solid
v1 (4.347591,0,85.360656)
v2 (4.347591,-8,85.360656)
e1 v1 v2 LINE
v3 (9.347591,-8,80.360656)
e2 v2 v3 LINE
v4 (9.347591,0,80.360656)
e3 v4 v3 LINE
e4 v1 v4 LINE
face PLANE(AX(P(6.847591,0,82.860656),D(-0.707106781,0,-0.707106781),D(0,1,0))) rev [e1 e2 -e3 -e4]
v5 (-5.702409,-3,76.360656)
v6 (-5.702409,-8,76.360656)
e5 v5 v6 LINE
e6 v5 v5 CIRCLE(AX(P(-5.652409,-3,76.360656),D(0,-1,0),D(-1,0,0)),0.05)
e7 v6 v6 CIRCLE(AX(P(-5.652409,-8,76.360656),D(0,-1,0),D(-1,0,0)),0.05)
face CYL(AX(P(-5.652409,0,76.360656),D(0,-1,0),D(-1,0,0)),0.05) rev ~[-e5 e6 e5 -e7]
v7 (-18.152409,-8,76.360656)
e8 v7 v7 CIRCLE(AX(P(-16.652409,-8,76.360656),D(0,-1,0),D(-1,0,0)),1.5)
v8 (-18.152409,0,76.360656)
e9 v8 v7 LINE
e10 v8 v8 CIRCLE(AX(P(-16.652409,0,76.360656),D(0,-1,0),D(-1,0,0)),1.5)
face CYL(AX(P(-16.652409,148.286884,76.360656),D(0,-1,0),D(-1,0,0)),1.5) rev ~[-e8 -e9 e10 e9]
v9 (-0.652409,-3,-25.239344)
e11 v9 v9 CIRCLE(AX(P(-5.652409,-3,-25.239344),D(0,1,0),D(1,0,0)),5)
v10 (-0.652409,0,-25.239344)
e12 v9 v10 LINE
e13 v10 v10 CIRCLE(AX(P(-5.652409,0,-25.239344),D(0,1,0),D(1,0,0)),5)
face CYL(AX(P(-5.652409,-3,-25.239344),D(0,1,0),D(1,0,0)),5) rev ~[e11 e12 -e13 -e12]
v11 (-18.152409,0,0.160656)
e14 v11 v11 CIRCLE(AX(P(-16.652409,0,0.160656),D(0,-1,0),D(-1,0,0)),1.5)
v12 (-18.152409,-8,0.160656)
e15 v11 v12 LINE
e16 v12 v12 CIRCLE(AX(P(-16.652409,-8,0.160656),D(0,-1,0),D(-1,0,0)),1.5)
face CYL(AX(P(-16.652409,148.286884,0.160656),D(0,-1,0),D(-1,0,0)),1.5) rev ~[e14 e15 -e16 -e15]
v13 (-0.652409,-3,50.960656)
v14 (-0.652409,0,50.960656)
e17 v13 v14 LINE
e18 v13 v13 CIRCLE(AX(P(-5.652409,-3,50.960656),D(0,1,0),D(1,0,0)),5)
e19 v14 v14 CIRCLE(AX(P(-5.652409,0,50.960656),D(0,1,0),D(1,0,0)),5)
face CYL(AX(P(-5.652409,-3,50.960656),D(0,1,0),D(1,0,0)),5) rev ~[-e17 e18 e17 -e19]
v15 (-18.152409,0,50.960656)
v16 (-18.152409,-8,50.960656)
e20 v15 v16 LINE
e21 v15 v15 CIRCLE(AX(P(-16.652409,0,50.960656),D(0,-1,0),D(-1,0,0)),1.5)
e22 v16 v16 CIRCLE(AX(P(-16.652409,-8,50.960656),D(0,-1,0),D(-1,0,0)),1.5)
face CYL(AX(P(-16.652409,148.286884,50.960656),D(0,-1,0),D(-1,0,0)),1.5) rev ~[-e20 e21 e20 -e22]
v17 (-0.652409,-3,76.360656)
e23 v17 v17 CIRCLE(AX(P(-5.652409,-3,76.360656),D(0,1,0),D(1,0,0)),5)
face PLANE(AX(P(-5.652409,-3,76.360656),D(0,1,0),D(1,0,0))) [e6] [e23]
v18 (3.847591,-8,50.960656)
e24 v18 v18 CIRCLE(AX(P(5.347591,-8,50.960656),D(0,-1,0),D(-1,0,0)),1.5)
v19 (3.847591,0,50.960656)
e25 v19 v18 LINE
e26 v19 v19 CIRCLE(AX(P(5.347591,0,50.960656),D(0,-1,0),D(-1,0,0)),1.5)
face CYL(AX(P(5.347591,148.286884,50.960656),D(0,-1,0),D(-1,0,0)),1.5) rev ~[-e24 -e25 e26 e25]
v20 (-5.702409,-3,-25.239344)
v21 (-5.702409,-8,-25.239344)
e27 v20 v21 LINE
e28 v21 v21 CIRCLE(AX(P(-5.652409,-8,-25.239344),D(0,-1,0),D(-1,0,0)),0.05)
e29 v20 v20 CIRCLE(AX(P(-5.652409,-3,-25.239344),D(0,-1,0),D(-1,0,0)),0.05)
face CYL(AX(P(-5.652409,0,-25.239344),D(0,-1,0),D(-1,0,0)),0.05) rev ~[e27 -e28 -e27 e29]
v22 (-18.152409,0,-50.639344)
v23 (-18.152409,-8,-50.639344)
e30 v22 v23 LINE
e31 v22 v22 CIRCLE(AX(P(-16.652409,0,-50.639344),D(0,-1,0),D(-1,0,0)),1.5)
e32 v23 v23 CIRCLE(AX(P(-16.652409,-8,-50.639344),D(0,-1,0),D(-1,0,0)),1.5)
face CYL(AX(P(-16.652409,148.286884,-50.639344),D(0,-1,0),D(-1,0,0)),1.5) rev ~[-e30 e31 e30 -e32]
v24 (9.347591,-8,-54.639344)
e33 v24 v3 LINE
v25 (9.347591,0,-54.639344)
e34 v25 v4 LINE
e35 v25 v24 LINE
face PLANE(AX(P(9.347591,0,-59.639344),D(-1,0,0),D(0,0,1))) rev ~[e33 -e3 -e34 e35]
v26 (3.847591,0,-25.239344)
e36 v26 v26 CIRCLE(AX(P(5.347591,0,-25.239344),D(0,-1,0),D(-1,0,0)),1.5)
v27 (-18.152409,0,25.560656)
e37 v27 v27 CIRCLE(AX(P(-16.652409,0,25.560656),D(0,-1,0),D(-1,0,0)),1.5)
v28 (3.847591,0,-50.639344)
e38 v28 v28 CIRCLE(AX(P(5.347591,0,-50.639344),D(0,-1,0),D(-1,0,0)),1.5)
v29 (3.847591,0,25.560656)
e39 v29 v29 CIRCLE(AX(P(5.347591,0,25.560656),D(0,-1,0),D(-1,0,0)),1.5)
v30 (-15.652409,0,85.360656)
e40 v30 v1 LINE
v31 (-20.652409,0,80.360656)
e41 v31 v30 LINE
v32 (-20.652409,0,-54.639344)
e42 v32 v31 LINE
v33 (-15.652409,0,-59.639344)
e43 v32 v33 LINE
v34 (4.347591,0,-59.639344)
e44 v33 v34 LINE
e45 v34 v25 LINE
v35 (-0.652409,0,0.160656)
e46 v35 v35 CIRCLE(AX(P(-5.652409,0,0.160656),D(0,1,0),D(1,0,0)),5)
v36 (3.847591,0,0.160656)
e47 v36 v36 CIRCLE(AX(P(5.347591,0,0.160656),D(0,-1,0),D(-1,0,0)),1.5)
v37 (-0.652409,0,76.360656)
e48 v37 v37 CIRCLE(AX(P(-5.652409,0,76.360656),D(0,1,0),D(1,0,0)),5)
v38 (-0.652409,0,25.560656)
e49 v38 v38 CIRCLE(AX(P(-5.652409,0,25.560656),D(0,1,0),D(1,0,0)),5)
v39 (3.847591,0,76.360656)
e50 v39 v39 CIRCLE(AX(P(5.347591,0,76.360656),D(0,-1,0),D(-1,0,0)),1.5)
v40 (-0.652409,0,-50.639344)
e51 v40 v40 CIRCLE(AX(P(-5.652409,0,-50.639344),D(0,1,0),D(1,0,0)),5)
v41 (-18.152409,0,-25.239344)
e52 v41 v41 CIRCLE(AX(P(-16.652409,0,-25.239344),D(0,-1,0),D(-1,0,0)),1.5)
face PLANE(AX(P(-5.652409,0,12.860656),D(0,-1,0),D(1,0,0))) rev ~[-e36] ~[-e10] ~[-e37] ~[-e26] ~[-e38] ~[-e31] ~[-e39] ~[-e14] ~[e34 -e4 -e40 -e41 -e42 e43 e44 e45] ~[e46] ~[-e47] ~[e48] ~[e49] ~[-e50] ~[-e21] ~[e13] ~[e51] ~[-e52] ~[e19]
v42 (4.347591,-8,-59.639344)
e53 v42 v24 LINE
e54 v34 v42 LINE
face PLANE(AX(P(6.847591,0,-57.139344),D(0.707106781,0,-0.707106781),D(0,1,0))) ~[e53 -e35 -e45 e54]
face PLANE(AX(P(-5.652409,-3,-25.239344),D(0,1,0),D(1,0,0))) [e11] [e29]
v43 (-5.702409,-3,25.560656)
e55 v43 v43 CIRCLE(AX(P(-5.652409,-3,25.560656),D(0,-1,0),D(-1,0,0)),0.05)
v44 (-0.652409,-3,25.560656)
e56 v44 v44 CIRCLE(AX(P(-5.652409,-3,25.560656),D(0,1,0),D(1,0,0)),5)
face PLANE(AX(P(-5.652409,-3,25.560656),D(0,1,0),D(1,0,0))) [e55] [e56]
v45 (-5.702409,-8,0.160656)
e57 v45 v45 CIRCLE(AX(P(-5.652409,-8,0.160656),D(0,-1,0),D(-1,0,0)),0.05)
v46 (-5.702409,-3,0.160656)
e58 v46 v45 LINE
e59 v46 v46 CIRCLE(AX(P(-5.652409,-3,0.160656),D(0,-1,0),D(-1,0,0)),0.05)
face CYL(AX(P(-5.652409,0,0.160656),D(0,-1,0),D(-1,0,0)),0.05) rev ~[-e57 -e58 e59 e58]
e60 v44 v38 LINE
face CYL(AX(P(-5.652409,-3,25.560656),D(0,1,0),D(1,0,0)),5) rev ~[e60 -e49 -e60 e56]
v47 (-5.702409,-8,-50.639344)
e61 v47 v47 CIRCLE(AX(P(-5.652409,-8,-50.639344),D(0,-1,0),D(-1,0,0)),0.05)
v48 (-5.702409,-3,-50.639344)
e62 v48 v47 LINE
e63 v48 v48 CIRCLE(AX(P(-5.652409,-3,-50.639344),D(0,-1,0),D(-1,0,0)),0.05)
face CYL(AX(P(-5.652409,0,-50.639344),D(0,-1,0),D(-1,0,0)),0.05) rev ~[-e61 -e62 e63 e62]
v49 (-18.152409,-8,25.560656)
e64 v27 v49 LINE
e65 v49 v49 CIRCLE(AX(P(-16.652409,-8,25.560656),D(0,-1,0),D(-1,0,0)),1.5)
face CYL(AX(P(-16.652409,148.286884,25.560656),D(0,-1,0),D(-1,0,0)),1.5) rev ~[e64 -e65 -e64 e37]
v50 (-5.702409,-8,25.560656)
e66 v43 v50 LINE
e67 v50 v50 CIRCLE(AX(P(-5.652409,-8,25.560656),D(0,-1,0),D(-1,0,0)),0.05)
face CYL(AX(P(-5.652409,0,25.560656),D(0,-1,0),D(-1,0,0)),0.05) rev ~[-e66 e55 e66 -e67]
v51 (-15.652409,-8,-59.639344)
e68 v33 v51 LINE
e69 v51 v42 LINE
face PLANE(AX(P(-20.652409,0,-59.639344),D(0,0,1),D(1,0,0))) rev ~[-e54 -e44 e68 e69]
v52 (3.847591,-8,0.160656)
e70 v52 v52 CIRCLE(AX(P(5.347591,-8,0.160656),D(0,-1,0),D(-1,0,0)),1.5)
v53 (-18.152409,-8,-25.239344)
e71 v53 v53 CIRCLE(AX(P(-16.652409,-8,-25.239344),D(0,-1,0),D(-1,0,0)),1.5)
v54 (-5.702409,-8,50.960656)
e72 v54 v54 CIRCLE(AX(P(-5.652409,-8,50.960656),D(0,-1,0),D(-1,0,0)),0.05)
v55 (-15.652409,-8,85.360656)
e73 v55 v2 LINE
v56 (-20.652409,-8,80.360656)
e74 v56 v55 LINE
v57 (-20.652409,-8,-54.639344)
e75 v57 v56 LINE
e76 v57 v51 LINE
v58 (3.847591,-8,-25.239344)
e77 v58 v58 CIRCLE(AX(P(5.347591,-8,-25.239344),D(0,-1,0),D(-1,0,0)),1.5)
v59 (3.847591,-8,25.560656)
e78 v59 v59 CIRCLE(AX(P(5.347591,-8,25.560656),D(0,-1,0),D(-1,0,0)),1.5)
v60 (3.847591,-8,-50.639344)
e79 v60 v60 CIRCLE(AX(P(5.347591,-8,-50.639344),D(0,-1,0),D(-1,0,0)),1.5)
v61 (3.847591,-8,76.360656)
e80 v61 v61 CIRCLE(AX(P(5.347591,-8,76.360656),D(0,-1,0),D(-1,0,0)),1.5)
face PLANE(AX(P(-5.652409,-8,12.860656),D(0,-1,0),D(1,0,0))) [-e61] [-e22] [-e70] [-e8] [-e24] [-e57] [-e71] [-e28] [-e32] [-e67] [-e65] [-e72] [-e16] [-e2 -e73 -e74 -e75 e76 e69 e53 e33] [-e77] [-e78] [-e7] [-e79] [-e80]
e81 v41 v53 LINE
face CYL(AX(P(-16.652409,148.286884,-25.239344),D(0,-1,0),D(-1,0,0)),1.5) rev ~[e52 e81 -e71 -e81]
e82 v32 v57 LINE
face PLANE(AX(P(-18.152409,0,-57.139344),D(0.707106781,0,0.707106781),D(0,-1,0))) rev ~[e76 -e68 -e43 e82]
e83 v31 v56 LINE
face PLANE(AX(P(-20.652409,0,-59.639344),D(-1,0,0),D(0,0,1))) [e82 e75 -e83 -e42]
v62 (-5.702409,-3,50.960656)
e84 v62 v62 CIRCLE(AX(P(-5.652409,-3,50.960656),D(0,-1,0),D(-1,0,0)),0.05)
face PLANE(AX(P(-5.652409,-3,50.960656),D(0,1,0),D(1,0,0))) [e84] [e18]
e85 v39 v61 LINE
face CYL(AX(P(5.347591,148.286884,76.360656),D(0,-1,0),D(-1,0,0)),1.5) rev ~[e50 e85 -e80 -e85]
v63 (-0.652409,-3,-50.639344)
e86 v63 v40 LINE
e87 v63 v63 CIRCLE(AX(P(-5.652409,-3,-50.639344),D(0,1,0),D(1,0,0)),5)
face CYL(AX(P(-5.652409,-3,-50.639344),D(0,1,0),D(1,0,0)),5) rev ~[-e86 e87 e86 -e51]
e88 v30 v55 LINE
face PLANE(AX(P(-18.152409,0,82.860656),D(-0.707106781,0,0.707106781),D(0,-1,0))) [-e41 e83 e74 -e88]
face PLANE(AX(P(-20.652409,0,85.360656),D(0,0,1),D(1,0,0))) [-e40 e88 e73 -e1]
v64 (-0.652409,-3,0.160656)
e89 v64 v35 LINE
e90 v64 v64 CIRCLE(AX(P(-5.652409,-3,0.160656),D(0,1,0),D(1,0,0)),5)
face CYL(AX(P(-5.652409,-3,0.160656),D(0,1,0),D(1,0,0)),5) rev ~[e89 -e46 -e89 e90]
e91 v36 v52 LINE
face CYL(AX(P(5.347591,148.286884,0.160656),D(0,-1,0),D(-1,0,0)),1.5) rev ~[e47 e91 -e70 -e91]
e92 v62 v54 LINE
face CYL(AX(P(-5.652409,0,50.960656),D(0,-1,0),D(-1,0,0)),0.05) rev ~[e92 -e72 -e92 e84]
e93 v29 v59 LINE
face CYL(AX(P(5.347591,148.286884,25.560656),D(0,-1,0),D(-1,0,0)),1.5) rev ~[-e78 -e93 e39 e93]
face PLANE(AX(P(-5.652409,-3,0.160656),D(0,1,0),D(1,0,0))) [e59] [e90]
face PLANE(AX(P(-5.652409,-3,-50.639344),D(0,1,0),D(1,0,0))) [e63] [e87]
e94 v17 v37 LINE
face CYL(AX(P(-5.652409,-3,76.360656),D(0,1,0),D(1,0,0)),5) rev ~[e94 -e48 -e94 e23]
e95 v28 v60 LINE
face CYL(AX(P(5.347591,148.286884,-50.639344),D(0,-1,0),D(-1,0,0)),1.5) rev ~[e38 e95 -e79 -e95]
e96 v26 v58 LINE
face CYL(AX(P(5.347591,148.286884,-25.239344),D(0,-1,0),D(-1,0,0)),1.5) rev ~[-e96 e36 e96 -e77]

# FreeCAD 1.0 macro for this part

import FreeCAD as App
import Part
import Sketcher
from FreeCAD import Vector
Q = App.Units.Quantity


def edges_at(feature, points):
    """Names of the edges that pass closest to the given points."""
    edges = feature.Shape.Edges
    near = lambda p: min(range(len(edges)), key=lambda i: edges[i].distToShape(Part.Vertex(*p))[0])
    return sorted({f"Edge{near(p) + 1}" for p in points})

doc = App.newDocument("Part")
body = doc.addObject("PartDesign::Body", "Body")

sketch1 = body.newObject("Sketcher::SketchObject", "Sketch")
sketch1.AttachmentSupport = (doc.getObject("XZ_Plane"), [""])
sketch1.MapMode = "FlatFace"
sketch1.addGeometry(Part.LineSegment(Vector(-21, 85, 0), Vector(-21, -60, 0)), False)
sketch1.addGeometry(Part.LineSegment(Vector(-21, -60, 0), Vector(9, -60, 0)), False)
sketch1.addGeometry(Part.LineSegment(Vector(9, -60, 0), Vector(9, 85, 0)), False)
sketch1.addGeometry(Part.LineSegment(Vector(9, 85, 0), Vector(-21, 85, 0)), False)
sketch1.addConstraint(Sketcher.Constraint("Coincident", 0, 2, 1, 1))
sketch1.addConstraint(Sketcher.Constraint("Coincident", 1, 2, 2, 1))
sketch1.addConstraint(Sketcher.Constraint("Coincident", 2, 2, 3, 1))
sketch1.addConstraint(Sketcher.Constraint("Coincident", 3, 2, 0, 1))
sketch1.addConstraint(Sketcher.Constraint("Vertical", 0))
sketch1.addConstraint(Sketcher.Constraint("Horizontal", 1))
sketch1.addConstraint(Sketcher.Constraint("Vertical", 2))
sketch1.addConstraint(Sketcher.Constraint("Horizontal", 3))
sketch1.addConstraint(Sketcher.Constraint("DistanceX", 1, 1, 1, 2, Q("30 mm")))
sketch1.addConstraint(Sketcher.Constraint("DistanceY", 0, 2, 0, 1, Q("145 mm")))
sketch1.addConstraint(Sketcher.Constraint("DistanceX", 0, 2, -1, 1, Q("20.652409 mm")))
sketch1.addConstraint(Sketcher.Constraint("DistanceY", 0, 2, -1, 1, Q("59.639344 mm")))
pad1 = body.newObject("PartDesign::Pad", "Pad")
pad1.Profile = sketch1
pad1.Length = 8

sketch2 = body.newObject("Sketcher::SketchObject", "Sketch001")
sketch2.AttachmentSupport = (doc.getObject("XZ_Plane"), [""])
sketch2.MapMode = "FlatFace"
sketch2.addGeometry(Part.Circle(Vector(5.3, 76.4, 0), Vector(0, 0, 1), 1.5), False)
sketch2.addGeometry(Part.Circle(Vector(5.3, 51, 0), Vector(0, 0, 1), 1.5), False)
sketch2.addGeometry(Part.Circle(Vector(5.3, 25.6, 0), Vector(0, 0, 1), 1.5), False)
sketch2.addGeometry(Part.Circle(Vector(5.3, 0.2, 0), Vector(0, 0, 1), 1.5), False)
sketch2.addGeometry(Part.Circle(Vector(5.3, -25.2, 0), Vector(0, 0, 1), 1.5), False)
sketch2.addGeometry(Part.Circle(Vector(5.3, -50.6, 0), Vector(0, 0, 1), 1.5), False)
sketch2.addGeometry(Part.Circle(Vector(-16.7, -50.6, 0), Vector(0, 0, 1), 1.5), False)
sketch2.addGeometry(Part.Circle(Vector(-16.7, -25.2, 0), Vector(0, 0, 1), 1.5), False)
sketch2.addGeometry(Part.Circle(Vector(-16.7, 0.2, 0), Vector(0, 0, 1), 1.5), False)
sketch2.addGeometry(Part.Circle(Vector(-16.7, 25.6, 0), Vector(0, 0, 1), 1.5), False)
sketch2.addGeometry(Part.Circle(Vector(-16.7, 51, 0), Vector(0, 0, 1), 1.5), False)
sketch2.addGeometry(Part.Circle(Vector(-16.7, 76.4, 0), Vector(0, 0, 1), 1.5), False)
sketch2.addConstraint(Sketcher.Constraint("Equal", 0, 1))
sketch2.addConstraint(Sketcher.Constraint("Equal", 1, 2))
sketch2.addConstraint(Sketcher.Constraint("Equal", 2, 3))
sketch2.addConstraint(Sketcher.Constraint("Equal", 3, 4))
sketch2.addConstraint(Sketcher.Constraint("Equal", 4, 5))
sketch2.addConstraint(Sketcher.Constraint("Equal", 5, 6))
sketch2.addConstraint(Sketcher.Constraint("Equal", 6, 7))
sketch2.addConstraint(Sketcher.Constraint("Equal", 7, 8))
sketch2.addConstraint(Sketcher.Constraint("Equal", 8, 9))
sketch2.addConstraint(Sketcher.Constraint("Equal", 9, 10))
sketch2.addConstraint(Sketcher.Constraint("Equal", 10, 11))
sketch2.addConstraint(Sketcher.Constraint("Horizontal", 5, 3, 6, 3))
sketch2.addConstraint(Sketcher.Constraint("Horizontal", 4, 3, 7, 3))
sketch2.addConstraint(Sketcher.Constraint("Horizontal", 3, 3, 8, 3))
sketch2.addConstraint(Sketcher.Constraint("Horizontal", 2, 3, 9, 3))
sketch2.addConstraint(Sketcher.Constraint("Horizontal", 1, 3, 10, 3))
sketch2.addConstraint(Sketcher.Constraint("Horizontal", 0, 3, 11, 3))
sketch2.addConstraint(Sketcher.Constraint("Vertical", 0, 3, 1, 3))
sketch2.addConstraint(Sketcher.Constraint("Vertical", 1, 3, 2, 3))
sketch2.addConstraint(Sketcher.Constraint("Vertical", 2, 3, 3, 3))
sketch2.addConstraint(Sketcher.Constraint("Vertical", 3, 3, 4, 3))
sketch2.addConstraint(Sketcher.Constraint("Vertical", 4, 3, 5, 3))
sketch2.addConstraint(Sketcher.Constraint("Vertical", 6, 3, 7, 3))
sketch2.addConstraint(Sketcher.Constraint("Vertical", 7, 3, 8, 3))
sketch2.addConstraint(Sketcher.Constraint("Vertical", 8, 3, 9, 3))
sketch2.addConstraint(Sketcher.Constraint("Vertical", 9, 3, 10, 3))
sketch2.addConstraint(Sketcher.Constraint("Vertical", 10, 3, 11, 3))
sketch2.addConstraint(Sketcher.Constraint("Diameter", 0, Q("3 mm")))
sketch2.addConstraint(Sketcher.Constraint("DistanceY", 5, 3, 0, 3, Q("127 mm")))
sketch2.addConstraint(Sketcher.Constraint("DistanceX", 6, 3, 5, 3, Q("22 mm")))
sketch2.addConstraint(Sketcher.Constraint("DistanceY", 1, 3, 0, 3, Q("25.4 mm")))
sketch2.addConstraint(Sketcher.Constraint("DistanceY", 2, 3, 1, 3, Q("25.4 mm")))
sketch2.addConstraint(Sketcher.Constraint("DistanceY", 3, 3, 2, 3, Q("25.4 mm")))
sketch2.addConstraint(Sketcher.Constraint("DistanceY", 4, 3, 3, 3, Q("25.4 mm")))
sketch2.addConstraint(Sketcher.Constraint("DistanceX", -1, 1, 0, 3, Q("5.347591 mm")))
sketch2.addConstraint(Sketcher.Constraint("DistanceY", -1, 1, 0, 3, Q("76.360656 mm")))
doc.recompute()
hole = body.newObject("PartDesign::Hole", "Hole")
hole.Profile = sketch2
hole.ThreadType = "None"
hole.Diameter = 3
hole.DepthType = "ThroughAll"
hole.Reversed = True

sketch3 = body.newObject("Sketcher::SketchObject", "Sketch002")
sketch3.AttachmentSupport = (doc.getObject("XZ_Plane"), [""])
sketch3.MapMode = "FlatFace"
sketch3.addGeometry(Part.Circle(Vector(-5.65, 76.36, 0), Vector(0, 0, 1), 0.05), False)
sketch3.addGeometry(Part.Circle(Vector(-5.65, 50.96, 0), Vector(0, 0, 1), 0.05), False)
sketch3.addGeometry(Part.Circle(Vector(-5.65, 25.56, 0), Vector(0, 0, 1), 0.05), False)
sketch3.addGeometry(Part.Circle(Vector(-5.65, 0.16, 0), Vector(0, 0, 1), 0.05), False)
sketch3.addGeometry(Part.Circle(Vector(-5.65, -25.24, 0), Vector(0, 0, 1), 0.05), False)
sketch3.addGeometry(Part.Circle(Vector(-5.65, -50.64, 0), Vector(0, 0, 1), 0.05), False)
sketch3.addConstraint(Sketcher.Constraint("Equal", 0, 1))
sketch3.addConstraint(Sketcher.Constraint("Equal", 1, 2))
sketch3.addConstraint(Sketcher.Constraint("Equal", 2, 3))
sketch3.addConstraint(Sketcher.Constraint("Equal", 3, 4))
sketch3.addConstraint(Sketcher.Constraint("Equal", 4, 5))
sketch3.addConstraint(Sketcher.Constraint("Vertical", 0, 3, 1, 3))
sketch3.addConstraint(Sketcher.Constraint("Vertical", 1, 3, 2, 3))
sketch3.addConstraint(Sketcher.Constraint("Vertical", 2, 3, 3, 3))
sketch3.addConstraint(Sketcher.Constraint("Vertical", 3, 3, 4, 3))
sketch3.addConstraint(Sketcher.Constraint("Vertical", 4, 3, 5, 3))
sketch3.addConstraint(Sketcher.Constraint("Diameter", 0, Q("0.1 mm")))
sketch3.addConstraint(Sketcher.Constraint("DistanceY", 5, 3, 0, 3, Q("127 mm")))
sketch3.addConstraint(Sketcher.Constraint("DistanceY", 1, 3, 0, 3, Q("25.4 mm")))
sketch3.addConstraint(Sketcher.Constraint("DistanceY", 2, 3, 1, 3, Q("25.4 mm")))
sketch3.addConstraint(Sketcher.Constraint("DistanceY", 3, 3, 2, 3, Q("25.4 mm")))
sketch3.addConstraint(Sketcher.Constraint("DistanceY", 4, 3, 3, 3, Q("25.4 mm")))
sketch3.addConstraint(Sketcher.Constraint("DistanceX", 0, 3, -1, 1, Q("5.652409 mm")))
sketch3.addConstraint(Sketcher.Constraint("DistanceY", -1, 1, 0, 3, Q("76.360656 mm")))
doc.recompute()
hole2 = body.newObject("PartDesign::Hole", "Hole001")
hole2.Profile = sketch3
hole2.ThreadType = "None"
hole2.Diameter = 0.1
hole2.DepthType = "Dimension"
hole2.Depth = 23
hole2.DrillPoint = "Angled"
hole2.DrillPointAngle = 118
hole2.HoleCutType = "Counterbore"
hole2.HoleCutDiameter = 10
hole2.HoleCutDepth = 3
hole2.Reversed = True
doc.recompute()

chamfer = body.newObject("PartDesign::Chamfer", "Chamfer")
chamfer.Base = (hole2, edges_at(hole2, [
    (9.348, -4, -59.639),
    (-20.652, -4, -59.639),
    (-20.652, -4, 85.361),
    (9.348, -4, 85.361),
]))
chamfer.Size = 5

doc.recompute()
